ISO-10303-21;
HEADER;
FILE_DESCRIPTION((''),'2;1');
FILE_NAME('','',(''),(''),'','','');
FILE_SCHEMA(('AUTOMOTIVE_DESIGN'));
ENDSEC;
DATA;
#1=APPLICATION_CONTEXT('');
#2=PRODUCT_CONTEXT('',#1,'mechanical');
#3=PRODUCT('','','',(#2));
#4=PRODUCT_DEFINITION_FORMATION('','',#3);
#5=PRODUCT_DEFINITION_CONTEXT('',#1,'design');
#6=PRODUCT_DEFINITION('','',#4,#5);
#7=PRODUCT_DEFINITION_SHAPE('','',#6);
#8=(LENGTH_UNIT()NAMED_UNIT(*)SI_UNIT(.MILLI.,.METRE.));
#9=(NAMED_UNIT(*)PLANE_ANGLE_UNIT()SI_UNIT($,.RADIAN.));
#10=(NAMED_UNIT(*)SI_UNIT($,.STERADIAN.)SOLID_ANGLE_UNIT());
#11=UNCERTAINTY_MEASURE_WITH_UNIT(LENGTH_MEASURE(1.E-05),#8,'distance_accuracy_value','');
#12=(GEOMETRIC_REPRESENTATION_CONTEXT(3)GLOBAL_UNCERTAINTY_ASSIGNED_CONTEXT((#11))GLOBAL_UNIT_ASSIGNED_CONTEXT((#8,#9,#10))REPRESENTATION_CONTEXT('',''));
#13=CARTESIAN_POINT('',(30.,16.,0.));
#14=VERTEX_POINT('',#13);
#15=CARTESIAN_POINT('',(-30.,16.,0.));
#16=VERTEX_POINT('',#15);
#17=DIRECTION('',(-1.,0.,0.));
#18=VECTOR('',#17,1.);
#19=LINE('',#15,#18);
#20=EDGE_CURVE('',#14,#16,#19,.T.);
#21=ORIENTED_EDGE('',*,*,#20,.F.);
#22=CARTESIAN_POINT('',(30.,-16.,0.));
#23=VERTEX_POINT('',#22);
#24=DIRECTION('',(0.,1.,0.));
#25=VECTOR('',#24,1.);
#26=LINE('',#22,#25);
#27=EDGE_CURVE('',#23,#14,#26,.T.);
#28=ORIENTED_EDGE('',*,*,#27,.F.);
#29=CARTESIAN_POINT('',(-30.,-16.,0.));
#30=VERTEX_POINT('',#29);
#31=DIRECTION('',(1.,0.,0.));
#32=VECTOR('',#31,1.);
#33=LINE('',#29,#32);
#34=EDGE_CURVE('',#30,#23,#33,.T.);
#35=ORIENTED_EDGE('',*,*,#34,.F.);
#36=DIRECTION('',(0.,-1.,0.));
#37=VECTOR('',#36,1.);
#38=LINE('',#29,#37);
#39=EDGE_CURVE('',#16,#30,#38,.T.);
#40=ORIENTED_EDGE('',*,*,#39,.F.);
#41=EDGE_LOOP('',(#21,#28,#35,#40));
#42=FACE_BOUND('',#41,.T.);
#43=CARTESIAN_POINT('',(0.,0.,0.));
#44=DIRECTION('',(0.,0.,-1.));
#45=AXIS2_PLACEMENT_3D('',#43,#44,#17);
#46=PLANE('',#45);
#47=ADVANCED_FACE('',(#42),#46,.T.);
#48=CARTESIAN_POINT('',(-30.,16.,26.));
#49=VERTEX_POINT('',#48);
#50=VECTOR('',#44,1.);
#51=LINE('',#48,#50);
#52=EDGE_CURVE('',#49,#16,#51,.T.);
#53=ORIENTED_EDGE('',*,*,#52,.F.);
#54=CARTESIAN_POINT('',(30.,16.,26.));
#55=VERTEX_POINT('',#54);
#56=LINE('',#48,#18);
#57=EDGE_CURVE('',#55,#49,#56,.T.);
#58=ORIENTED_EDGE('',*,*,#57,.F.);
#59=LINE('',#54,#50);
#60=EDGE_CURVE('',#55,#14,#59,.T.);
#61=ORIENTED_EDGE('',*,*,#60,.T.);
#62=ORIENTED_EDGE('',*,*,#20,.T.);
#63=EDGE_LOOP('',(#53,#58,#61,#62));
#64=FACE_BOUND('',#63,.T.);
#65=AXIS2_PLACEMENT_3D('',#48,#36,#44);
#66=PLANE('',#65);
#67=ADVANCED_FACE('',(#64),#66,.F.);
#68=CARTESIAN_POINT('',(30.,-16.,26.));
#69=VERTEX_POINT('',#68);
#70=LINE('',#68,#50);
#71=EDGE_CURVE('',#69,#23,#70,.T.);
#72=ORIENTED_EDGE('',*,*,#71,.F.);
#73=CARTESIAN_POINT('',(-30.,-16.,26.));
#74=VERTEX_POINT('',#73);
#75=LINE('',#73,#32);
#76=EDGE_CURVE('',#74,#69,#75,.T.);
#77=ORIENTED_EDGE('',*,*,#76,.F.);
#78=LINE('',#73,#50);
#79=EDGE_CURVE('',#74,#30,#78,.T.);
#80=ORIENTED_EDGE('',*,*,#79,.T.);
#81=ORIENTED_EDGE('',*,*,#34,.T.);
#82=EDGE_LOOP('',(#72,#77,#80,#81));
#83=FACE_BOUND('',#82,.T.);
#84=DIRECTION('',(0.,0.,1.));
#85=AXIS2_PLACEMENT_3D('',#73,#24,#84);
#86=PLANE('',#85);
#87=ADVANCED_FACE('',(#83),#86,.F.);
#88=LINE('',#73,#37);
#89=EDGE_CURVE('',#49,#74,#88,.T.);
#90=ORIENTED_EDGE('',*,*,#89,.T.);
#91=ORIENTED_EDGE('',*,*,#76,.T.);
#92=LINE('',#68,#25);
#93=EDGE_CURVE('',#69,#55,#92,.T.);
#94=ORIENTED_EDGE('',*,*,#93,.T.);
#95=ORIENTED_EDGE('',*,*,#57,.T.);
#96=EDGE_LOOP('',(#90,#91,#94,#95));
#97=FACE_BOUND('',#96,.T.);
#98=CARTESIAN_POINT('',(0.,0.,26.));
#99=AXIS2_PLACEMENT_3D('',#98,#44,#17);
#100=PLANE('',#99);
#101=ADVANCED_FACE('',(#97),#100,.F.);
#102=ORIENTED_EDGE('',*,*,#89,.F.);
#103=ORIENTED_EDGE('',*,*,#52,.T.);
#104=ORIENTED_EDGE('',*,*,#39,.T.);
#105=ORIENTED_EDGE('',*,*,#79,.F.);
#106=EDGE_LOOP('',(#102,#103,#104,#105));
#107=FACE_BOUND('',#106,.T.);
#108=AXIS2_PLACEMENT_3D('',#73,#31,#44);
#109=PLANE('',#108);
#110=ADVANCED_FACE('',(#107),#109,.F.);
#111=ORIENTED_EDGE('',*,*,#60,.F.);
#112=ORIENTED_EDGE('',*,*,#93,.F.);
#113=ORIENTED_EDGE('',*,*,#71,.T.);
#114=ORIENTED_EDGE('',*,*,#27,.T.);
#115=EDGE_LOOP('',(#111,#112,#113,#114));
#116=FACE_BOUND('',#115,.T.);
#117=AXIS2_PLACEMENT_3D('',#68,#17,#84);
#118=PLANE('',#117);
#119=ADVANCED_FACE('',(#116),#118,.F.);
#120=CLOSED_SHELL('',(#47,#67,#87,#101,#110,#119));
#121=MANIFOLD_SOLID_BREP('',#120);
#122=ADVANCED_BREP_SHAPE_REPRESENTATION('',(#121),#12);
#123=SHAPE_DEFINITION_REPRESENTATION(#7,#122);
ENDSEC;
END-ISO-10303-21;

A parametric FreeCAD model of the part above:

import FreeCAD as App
import Part
import Sketcher
from FreeCAD import Vector

doc = App.newDocument("Part")
body = doc.addObject("PartDesign::Body", "Body")

sketch1 = doc.addObject("Sketcher::SketchObject", "Sketch")
body.addObject(sketch1)
sketch1.AttachmentSupport = (doc.XY_Plane, [""])
sketch1.MapMode = "FlatFace"
sketch1.addGeometry(Part.LineSegment(Vector(-30, 16, 0), Vector(-30, -16, 0)), False)
sketch1.addGeometry(Part.LineSegment(Vector(-30, -16, 0), Vector(30, -16, 0)), False)
sketch1.addGeometry(Part.LineSegment(Vector(30, -16, 0), Vector(30, 16, 0)), False)
sketch1.addGeometry(Part.LineSegment(Vector(30, 16, 0), Vector(-30, 16, 0)), False)
sketch1.addConstraint(Sketcher.Constraint("Coincident", 0, 2, 1, 1))
sketch1.addConstraint(Sketcher.Constraint("Coincident", 1, 2, 2, 1))
sketch1.addConstraint(Sketcher.Constraint("Coincident", 2, 2, 3, 1))
sketch1.addConstraint(Sketcher.Constraint("Coincident", 3, 2, 0, 1))
sketch1.addConstraint(Sketcher.Constraint("Vertical", 0))
sketch1.addConstraint(Sketcher.Constraint("Horizontal", 1))
sketch1.addConstraint(Sketcher.Constraint("Vertical", 2))
sketch1.addConstraint(Sketcher.Constraint("Horizontal", 3))
sketch1.addConstraint(Sketcher.Constraint("Symmetric", 0, 2, 2, 2, -1, 1))
sketch1.addConstraint(Sketcher.Constraint("DistanceX", 1, 1, 1, 2, 60.0))
sketch1.addConstraint(Sketcher.Constraint("DistanceY", 0, 2, 0, 1, 32.0))
pad1 = doc.addObject("PartDesign::Pad", "Pad")
body.addObject(pad1)
pad1.Profile = sketch1
pad1.Length = 26

doc.recompute()
